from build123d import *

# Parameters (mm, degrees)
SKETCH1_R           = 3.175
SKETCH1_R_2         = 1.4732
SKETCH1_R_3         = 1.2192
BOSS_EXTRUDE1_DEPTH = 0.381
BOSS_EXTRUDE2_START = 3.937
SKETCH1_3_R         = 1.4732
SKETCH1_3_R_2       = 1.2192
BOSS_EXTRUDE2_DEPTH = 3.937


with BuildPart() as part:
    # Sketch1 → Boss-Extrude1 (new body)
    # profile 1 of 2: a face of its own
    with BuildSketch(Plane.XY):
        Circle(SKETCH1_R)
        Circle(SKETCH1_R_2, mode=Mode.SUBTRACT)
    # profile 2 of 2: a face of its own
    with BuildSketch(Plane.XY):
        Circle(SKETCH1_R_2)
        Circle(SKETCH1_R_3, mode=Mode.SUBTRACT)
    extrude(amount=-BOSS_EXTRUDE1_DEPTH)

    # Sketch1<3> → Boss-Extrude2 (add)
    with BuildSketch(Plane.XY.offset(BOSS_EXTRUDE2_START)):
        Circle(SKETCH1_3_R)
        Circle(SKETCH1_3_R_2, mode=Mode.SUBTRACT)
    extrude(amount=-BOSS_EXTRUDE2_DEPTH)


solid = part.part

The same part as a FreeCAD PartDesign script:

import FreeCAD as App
import Part
import Sketcher
Q = App.Units.Quantity

doc = App.newDocument("Part")
body = doc.addObject("PartDesign::Body", "Body")

# Sketch on XY plane
sketch1 = body.newObject("Sketcher::SketchObject", "Sketch")
sketch1.AttachmentSupport = (doc.getObject("XY_Plane"), [""])
sketch1.MapMode = "FlatFace"
sketch1.addGeometry([
    Part.Circle(App.Vector(0, 0, 0), App.Vector(0, 0, 1), 3.175),
    Part.Circle(App.Vector(0, 0, 0), App.Vector(0, 0, 1), 1.2192),
], False)
sketch1.addConstraint([
    Sketcher.Constraint("Coincident", 0, 3, -1, 1),
    Sketcher.Constraint("Coincident", 1, 3, -1, 1),
    Sketcher.Constraint("Diameter", 0, Q("0.25 in")),
    Sketcher.Constraint("Diameter", 1, Q("0.096 in")),
])
pad1 = body.newObject("PartDesign::Pad", "Pad")
pad1.Profile = sketch1
pad1.Length = Q("0.015 in")
pad1.Reversed = True

# Sketch on XY plane
sketch2 = body.newObject("Sketcher::SketchObject", "Sketch001")
sketch2.AttachmentSupport = (doc.getObject("XY_Plane"), [""])
sketch2.MapMode = "FlatFace"
sketch2.AttachmentOffset = App.Placement(App.Vector(0, 0, 0.155 * 25.4), App.Rotation())
sketch2.addGeometry([
    Part.Circle(App.Vector(0, 0, 0), App.Vector(0, 0, 1), 1.4732),
    Part.Circle(App.Vector(0, 0, 0), App.Vector(0, 0, 1), 1.2192),
], False)
sketch2.addConstraint([
    Sketcher.Constraint("Coincident", 0, 3, -1, 1),
    Sketcher.Constraint("Coincident", 1, 3, -1, 1),
    Sketcher.Constraint("Diameter", 0, Q("0.116 in")),
    Sketcher.Constraint("Diameter", 1, Q("0.096 in")),
])
pad2 = body.newObject("PartDesign::Pad", "Pad001")
pad2.Profile = sketch2
pad2.Length = Q("0.155 in")
pad2.Reversed = True

doc.recompute()
